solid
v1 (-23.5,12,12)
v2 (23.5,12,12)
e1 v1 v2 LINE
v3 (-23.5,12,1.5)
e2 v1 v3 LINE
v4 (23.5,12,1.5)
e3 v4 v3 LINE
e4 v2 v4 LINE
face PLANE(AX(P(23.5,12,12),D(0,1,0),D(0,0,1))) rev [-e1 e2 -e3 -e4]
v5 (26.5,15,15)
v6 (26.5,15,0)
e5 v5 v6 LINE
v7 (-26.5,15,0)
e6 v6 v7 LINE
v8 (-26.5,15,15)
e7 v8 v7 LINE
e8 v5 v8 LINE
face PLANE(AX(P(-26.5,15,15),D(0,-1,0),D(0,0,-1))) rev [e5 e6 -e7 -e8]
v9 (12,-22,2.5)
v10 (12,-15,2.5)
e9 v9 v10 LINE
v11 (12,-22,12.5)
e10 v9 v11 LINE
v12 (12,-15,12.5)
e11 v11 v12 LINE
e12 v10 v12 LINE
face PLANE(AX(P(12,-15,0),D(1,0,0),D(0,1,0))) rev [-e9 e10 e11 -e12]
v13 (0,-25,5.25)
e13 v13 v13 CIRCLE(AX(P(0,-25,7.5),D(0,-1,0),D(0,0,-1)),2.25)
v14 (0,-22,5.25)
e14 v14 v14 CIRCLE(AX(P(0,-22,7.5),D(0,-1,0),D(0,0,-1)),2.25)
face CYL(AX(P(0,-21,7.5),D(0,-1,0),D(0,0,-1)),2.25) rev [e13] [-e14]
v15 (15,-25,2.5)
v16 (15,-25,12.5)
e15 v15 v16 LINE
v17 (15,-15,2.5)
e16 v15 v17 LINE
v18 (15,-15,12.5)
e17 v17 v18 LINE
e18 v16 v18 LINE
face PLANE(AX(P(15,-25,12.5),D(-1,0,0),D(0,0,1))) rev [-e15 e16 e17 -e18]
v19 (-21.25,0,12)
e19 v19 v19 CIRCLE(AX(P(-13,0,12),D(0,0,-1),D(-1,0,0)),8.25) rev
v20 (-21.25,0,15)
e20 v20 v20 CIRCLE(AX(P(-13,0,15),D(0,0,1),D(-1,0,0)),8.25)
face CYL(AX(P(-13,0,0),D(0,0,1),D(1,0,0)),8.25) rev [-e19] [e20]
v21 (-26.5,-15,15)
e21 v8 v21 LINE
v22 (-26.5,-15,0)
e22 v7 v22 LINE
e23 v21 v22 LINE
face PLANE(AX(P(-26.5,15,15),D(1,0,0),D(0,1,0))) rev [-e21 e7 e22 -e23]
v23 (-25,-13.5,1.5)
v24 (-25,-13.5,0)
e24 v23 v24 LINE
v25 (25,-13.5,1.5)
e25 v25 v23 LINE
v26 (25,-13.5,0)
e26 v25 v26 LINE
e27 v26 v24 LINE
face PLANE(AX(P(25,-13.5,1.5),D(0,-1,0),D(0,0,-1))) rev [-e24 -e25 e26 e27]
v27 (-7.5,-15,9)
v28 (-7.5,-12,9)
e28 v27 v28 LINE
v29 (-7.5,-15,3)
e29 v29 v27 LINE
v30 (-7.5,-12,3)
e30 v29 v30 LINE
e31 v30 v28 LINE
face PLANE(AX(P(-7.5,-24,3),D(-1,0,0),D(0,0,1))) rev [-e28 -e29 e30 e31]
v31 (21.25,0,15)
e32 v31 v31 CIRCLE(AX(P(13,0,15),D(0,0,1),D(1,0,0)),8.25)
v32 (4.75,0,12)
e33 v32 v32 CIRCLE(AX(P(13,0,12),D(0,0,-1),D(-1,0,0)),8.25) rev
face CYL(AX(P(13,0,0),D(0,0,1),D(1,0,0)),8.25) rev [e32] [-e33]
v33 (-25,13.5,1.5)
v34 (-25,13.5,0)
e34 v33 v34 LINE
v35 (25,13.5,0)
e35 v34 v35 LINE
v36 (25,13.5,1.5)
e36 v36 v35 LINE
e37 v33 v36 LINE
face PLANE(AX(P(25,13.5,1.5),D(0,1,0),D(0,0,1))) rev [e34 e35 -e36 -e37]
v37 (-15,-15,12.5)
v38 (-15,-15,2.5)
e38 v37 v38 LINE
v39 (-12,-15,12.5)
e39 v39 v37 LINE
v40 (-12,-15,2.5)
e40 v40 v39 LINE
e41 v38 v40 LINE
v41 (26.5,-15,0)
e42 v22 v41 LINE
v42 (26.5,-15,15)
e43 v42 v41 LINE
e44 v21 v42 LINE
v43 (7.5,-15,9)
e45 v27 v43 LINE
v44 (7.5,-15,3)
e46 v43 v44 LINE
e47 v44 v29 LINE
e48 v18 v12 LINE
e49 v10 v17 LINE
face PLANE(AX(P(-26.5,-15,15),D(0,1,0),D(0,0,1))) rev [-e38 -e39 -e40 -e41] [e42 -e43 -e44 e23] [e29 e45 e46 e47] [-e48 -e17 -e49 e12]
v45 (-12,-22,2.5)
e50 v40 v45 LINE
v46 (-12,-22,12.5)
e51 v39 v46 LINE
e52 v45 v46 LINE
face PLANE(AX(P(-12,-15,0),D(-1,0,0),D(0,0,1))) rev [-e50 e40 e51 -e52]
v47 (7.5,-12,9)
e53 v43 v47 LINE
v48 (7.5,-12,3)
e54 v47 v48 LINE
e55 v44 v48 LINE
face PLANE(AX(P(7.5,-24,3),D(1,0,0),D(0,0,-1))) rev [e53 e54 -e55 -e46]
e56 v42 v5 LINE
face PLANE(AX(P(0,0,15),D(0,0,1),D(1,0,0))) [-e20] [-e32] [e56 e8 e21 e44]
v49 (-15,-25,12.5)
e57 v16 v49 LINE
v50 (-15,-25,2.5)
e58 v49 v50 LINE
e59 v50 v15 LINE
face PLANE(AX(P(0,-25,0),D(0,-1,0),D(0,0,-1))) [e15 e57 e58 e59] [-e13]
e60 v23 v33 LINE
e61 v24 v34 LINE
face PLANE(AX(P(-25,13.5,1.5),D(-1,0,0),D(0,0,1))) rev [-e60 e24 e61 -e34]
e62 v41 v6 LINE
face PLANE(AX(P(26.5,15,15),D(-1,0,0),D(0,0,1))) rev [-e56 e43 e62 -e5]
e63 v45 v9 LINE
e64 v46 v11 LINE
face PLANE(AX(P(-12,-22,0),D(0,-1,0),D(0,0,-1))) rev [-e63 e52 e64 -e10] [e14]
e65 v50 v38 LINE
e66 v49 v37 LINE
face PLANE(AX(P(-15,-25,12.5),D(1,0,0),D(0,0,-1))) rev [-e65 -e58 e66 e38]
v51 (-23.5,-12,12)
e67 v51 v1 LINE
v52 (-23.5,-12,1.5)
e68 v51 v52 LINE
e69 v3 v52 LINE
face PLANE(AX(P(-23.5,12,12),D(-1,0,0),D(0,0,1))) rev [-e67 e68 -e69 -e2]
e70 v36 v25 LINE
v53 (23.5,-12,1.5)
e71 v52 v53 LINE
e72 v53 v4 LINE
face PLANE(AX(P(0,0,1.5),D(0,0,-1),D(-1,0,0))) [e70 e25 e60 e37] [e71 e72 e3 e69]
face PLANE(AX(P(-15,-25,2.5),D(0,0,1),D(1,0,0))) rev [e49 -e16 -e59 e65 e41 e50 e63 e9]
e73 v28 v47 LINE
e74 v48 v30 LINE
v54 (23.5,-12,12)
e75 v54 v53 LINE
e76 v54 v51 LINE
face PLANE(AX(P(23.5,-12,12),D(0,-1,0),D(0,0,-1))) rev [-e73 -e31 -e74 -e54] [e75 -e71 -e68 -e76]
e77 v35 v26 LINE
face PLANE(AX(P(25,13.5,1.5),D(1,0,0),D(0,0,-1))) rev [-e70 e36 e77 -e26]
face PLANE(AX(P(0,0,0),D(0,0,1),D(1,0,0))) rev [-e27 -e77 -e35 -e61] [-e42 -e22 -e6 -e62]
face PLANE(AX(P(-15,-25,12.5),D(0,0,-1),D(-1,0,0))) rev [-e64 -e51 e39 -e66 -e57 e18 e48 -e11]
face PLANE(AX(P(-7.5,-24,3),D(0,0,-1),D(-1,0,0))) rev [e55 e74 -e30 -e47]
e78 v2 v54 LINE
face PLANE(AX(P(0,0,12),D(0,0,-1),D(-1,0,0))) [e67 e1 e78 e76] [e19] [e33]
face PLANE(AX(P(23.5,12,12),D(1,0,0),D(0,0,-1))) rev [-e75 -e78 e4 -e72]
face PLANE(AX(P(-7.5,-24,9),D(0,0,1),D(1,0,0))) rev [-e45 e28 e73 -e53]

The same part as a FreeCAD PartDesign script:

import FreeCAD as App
import Part
import Sketcher

V = App.Vector

doc = App.newDocument("Part")
body = doc.addObject("PartDesign::Body", "Body")

# Sketch on XY plane
sketch1 = body.newObject("Sketcher::SketchObject", "Sketch")
sketch1.AttachmentSupport = (doc.getObject("XY_Plane"), [""])
sketch1.MapMode = "FlatFace"
sketch1.addGeometry(Part.LineSegment(V(-26, 15, 0), V(-26, -15, 0)), False)
sketch1.addGeometry(Part.LineSegment(V(-26, -15, 0), V(26, -15, 0)), False)
sketch1.addGeometry(Part.LineSegment(V(26, -15, 0), V(26, 15, 0)), False)
sketch1.addGeometry(Part.LineSegment(V(26, 15, 0), V(-26, 15, 0)), False)
sketch1.addConstraint(Sketcher.Constraint("Coincident", 0, 2, 1, 1))
sketch1.addConstraint(Sketcher.Constraint("Coincident", 1, 2, 2, 1))
sketch1.addConstraint(Sketcher.Constraint("Coincident", 2, 2, 3, 1))
sketch1.addConstraint(Sketcher.Constraint("Coincident", 3, 2, 0, 1))
sketch1.addConstraint(Sketcher.Constraint("Vertical", 0))
sketch1.addConstraint(Sketcher.Constraint("Horizontal", 1))
sketch1.addConstraint(Sketcher.Constraint("Vertical", 2))
sketch1.addConstraint(Sketcher.Constraint("Horizontal", 3))
sketch1.addConstraint(Sketcher.Constraint("Symmetric", 0, 2, 2, 2, -1, 1))
sketch1.addConstraint(Sketcher.Constraint("DistanceX", 1, 1, 1, 2, 53.0))
sketch1.addConstraint(Sketcher.Constraint("DistanceY", 0, 2, 0, 1, 30.0))
pad1 = body.newObject("PartDesign::Pad", "Pad")
pad1.Profile = sketch1
pad1.Length = 15

# Sketch on XY plane
sketch2 = body.newObject("Sketcher::SketchObject", "Sketch001")
sketch2.AttachmentSupport = (doc.getObject("XY_Plane"), [""])
sketch2.MapMode = "FlatFace"
sketch2.AttachmentOffset = App.Placement(V(0, 0, 15), App.Rotation())
sketch2.addGeometry(Part.Circle(V(13, 0, 0), V(0, 0, 1), 8), False)
sketch2.addGeometry(Part.Circle(V(-13, 0, 0), V(0, 0, 1), 8), False)
sketch2.addConstraint(Sketcher.Constraint("Equal", 0, 1))
sketch2.addConstraint(Sketcher.Constraint("Symmetric", 0, 3, 1, 3, -1, 1))
sketch2.addConstraint(Sketcher.Constraint("PointOnObject", 0, 3, -1))
sketch2.addConstraint(Sketcher.Constraint("Diameter", 0, 16.5))
sketch2.addConstraint(Sketcher.Constraint("DistanceX", -1, 1, 0, 3, 13.0))
pocket1 = body.newObject("PartDesign::Pocket", "Pocket")
pocket1.Profile = sketch2
pocket1.Type = "ThroughAll"

# Sketch on XY plane
sketch3 = body.newObject("Sketcher::SketchObject", "Sketch002")
sketch3.AttachmentSupport = (doc.getObject("XY_Plane"), [""])
sketch3.MapMode = "FlatFace"
sketch3.addGeometry(Part.LineSegment(V(24, 12, 0), V(24, -12, 0)), False)
sketch3.addGeometry(Part.LineSegment(V(24, -12, 0), V(-24, -12, 0)), False)
sketch3.addGeometry(Part.LineSegment(V(-24, -12, 0), V(-24, 12, 0)), False)
sketch3.addGeometry(Part.LineSegment(V(-24, 12, 0), V(24, 12, 0)), False)
sketch3.addConstraint(Sketcher.Constraint("Coincident", 0, 2, 1, 1))
sketch3.addConstraint(Sketcher.Constraint("Coincident", 1, 2, 2, 1))
sketch3.addConstraint(Sketcher.Constraint("Coincident", 2, 2, 3, 1))
sketch3.addConstraint(Sketcher.Constraint("Coincident", 3, 2, 0, 1))
sketch3.addConstraint(Sketcher.Constraint("Vertical", 0))
sketch3.addConstraint(Sketcher.Constraint("Horizontal", 1))
sketch3.addConstraint(Sketcher.Constraint("Vertical", 2))
sketch3.addConstraint(Sketcher.Constraint("Horizontal", 3))
sketch3.addConstraint(Sketcher.Constraint("Symmetric", 0, 2, 2, 2, -1, 1))
sketch3.addConstraint(Sketcher.Constraint("DistanceX", 1, 2, 1, 1, 47.0))
sketch3.addConstraint(Sketcher.Constraint("DistanceY", 0, 2, 0, 1, 24.0))
pocket2 = body.newObject("PartDesign::Pocket", "Pocket001")
pocket2.Profile = sketch3
pocket2.Length = 12
pocket2.Reversed = True

# Sketch on XZ plane
sketch4 = body.newObject("Sketcher::SketchObject", "Sketch003")
sketch4.AttachmentSupport = (doc.getObject("XZ_Plane"), [""])
sketch4.MapMode = "FlatFace"
sketch4.AttachmentOffset = App.Placement(V(0, 0, 12), App.Rotation())
sketch4.addGeometry(Part.LineSegment(V(-8, 3, 0), V(-8, 9, 0)), False)
sketch4.addGeometry(Part.LineSegment(V(-8, 9, 0), V(8, 9, 0)), False)
sketch4.addGeometry(Part.LineSegment(V(8, 9, 0), V(8, 3, 0)), False)
sketch4.addGeometry(Part.LineSegment(V(8, 3, 0), V(-8, 3, 0)), False)
sketch4.addConstraint(Sketcher.Constraint("Coincident", 0, 2, 1, 1))
sketch4.addConstraint(Sketcher.Constraint("Coincident", 1, 2, 2, 1))
sketch4.addConstraint(Sketcher.Constraint("Coincident", 2, 2, 3, 1))
sketch4.addConstraint(Sketcher.Constraint("Coincident", 3, 2, 0, 1))
sketch4.addConstraint(Sketcher.Constraint("Vertical", 0))
sketch4.addConstraint(Sketcher.Constraint("Horizontal", 1))
sketch4.addConstraint(Sketcher.Constraint("Vertical", 2))
sketch4.addConstraint(Sketcher.Constraint("Horizontal", 3))
sketch4.addConstraint(Sketcher.Constraint("DistanceX", 1, 1, 1, 2, 15.0))
sketch4.addConstraint(Sketcher.Constraint("DistanceY", 0, 1, 0, 2, 6.0))
sketch4.addConstraint(Sketcher.Constraint("DistanceY", -1, 1, 0, 2, 9.0))
sketch4.addConstraint(Sketcher.Constraint("DistanceX", 0, 2, -1, 1, 7.5))
pocket3 = body.newObject("PartDesign::Pocket", "Pocket002")
pocket3.Profile = sketch4
pocket3.Length = 12
pocket3.Reversed = True

# Sketch on XY plane
sketch5 = body.newObject("Sketcher::SketchObject", "Sketch004")
sketch5.AttachmentSupport = (doc.getObject("XY_Plane"), [""])
sketch5.MapMode = "FlatFace"
sketch5.addGeometry(Part.LineSegment(V(25, 14, 0), V(25, -14, 0)), False)
sketch5.addGeometry(Part.LineSegment(V(25, -14, 0), V(-25, -14, 0)), False)
sketch5.addGeometry(Part.LineSegment(V(-25, -14, 0), V(-25, 14, 0)), False)
sketch5.addGeometry(Part.LineSegment(V(-25, 14, 0), V(25, 14, 0)), False)
sketch5.addConstraint(Sketcher.Constraint("Coincident", 0, 2, 1, 1))
sketch5.addConstraint(Sketcher.Constraint("Coincident", 1, 2, 2, 1))
sketch5.addConstraint(Sketcher.Constraint("Coincident", 2, 2, 3, 1))
sketch5.addConstraint(Sketcher.Constraint("Coincident", 3, 2, 0, 1))
sketch5.addConstraint(Sketcher.Constraint("Vertical", 0))
sketch5.addConstraint(Sketcher.Constraint("Horizontal", 1))
sketch5.addConstraint(Sketcher.Constraint("Vertical", 2))
sketch5.addConstraint(Sketcher.Constraint("Horizontal", 3))
sketch5.addConstraint(Sketcher.Constraint("Symmetric", 0, 2, 2, 2, -1, 1))
sketch5.addConstraint(Sketcher.Constraint("DistanceX", 1, 2, 1, 1, 50.0))
sketch5.addConstraint(Sketcher.Constraint("DistanceY", 0, 2, 0, 1, 27.0))
pocket4 = body.newObject("PartDesign::Pocket", "Pocket003")
pocket4.Profile = sketch5
pocket4.Length = 1.5
pocket4.Reversed = True

# Sketch on XZ plane
sketch6 = body.newObject("Sketcher::SketchObject", "Sketch005")
sketch6.AttachmentSupport = (doc.getObject("XZ_Plane"), [""])
sketch6.MapMode = "FlatFace"
sketch6.AttachmentOffset = App.Placement(V(0, 0, 15), App.Rotation())
sketch6.addGeometry(Part.LineSegment(V(-15, 12, 0), V(-15, 2, 0)), False)
sketch6.addGeometry(Part.LineSegment(V(-15, 2, 0), V(15, 2, 0)), False)
sketch6.addGeometry(Part.LineSegment(V(15, 2, 0), V(15, 12, 0)), False)
sketch6.addGeometry(Part.LineSegment(V(15, 12, 0), V(-15, 12, 0)), False)
sketch6.addConstraint(Sketcher.Constraint("Coincident", 0, 2, 1, 1))
sketch6.addConstraint(Sketcher.Constraint("Coincident", 1, 2, 2, 1))
sketch6.addConstraint(Sketcher.Constraint("Coincident", 2, 2, 3, 1))
sketch6.addConstraint(Sketcher.Constraint("Coincident", 3, 2, 0, 1))
sketch6.addConstraint(Sketcher.Constraint("Vertical", 0))
sketch6.addConstraint(Sketcher.Constraint("Horizontal", 1))
sketch6.addConstraint(Sketcher.Constraint("Vertical", 2))
sketch6.addConstraint(Sketcher.Constraint("Horizontal", 3))
sketch6.addConstraint(Sketcher.Constraint("DistanceX", 1, 1, 1, 2, 30.0))
sketch6.addConstraint(Sketcher.Constraint("DistanceY", 0, 2, 0, 1, 10.0))
sketch6.addConstraint(Sketcher.Constraint("DistanceX", 0, 2, -1, 1, 15.0))
sketch6.addConstraint(Sketcher.Constraint("DistanceY", -1, 1, 0, 2, 2.5))
pad2 = body.newObject("PartDesign::Pad", "Pad001")
pad2.Profile = sketch6
pad2.Length = 10

# Sketch on XY plane
sketch7 = body.newObject("Sketcher::SketchObject", "Sketch006")
sketch7.AttachmentSupport = (doc.getObject("XY_Plane"), [""])
sketch7.MapMode = "FlatFace"
sketch7.AttachmentOffset = App.Placement(V(0, 0, 12.5), App.Rotation())
sketch7.addGeometry(Part.LineSegment(V(-12, -15, 0), V(-12, -22, 0)), False)
sketch7.addGeometry(Part.LineSegment(V(-12, -22, 0), V(12, -22, 0)), False)
sketch7.addGeometry(Part.LineSegment(V(12, -22, 0), V(12, -15, 0)), False)
sketch7.addGeometry(Part.LineSegment(V(12, -15, 0), V(-12, -15, 0)), False)
sketch7.addConstraint(Sketcher.Constraint("Coincident", 0, 2, 1, 1))
sketch7.addConstraint(Sketcher.Constraint("Coincident", 1, 2, 2, 1))
sketch7.addConstraint(Sketcher.Constraint("Coincident", 2, 2, 3, 1))
sketch7.addConstraint(Sketcher.Constraint("Coincident", 3, 2, 0, 1))
sketch7.addConstraint(Sketcher.Constraint("Vertical", 0))
sketch7.addConstraint(Sketcher.Constraint("Horizontal", 1))
sketch7.addConstraint(Sketcher.Constraint("Vertical", 2))
sketch7.addConstraint(Sketcher.Constraint("Horizontal", 3))
sketch7.addConstraint(Sketcher.Constraint("DistanceX", 1, 1, 1, 2, 24.0))
sketch7.addConstraint(Sketcher.Constraint("DistanceY", 0, 2, 0, 1, 7.0))
sketch7.addConstraint(Sketcher.Constraint("DistanceX", 0, 2, -1, 1, 12.0))
sketch7.addConstraint(Sketcher.Constraint("DistanceY", 0, 2, -1, 1, 22.0))
pocket5 = body.newObject("PartDesign::Pocket", "Pocket004")
pocket5.Profile = sketch7
pocket5.Type = "ThroughAll"

# Sketch on XZ plane
sketch8 = body.newObject("Sketcher::SketchObject", "Sketch007")
sketch8.AttachmentSupport = (doc.getObject("XZ_Plane"), [""])
sketch8.MapMode = "FlatFace"
sketch8.AttachmentOffset = App.Placement(V(0, 0, 25), App.Rotation())
sketch8.addGeometry(Part.Circle(V(0, 7.5, 0), V(0, 0, 1), 2.2), False)
sketch8.addConstraint(Sketcher.Constraint("PointOnObject", 0, 3, -2))
sketch8.addConstraint(Sketcher.Constraint("Diameter", 0, 4.5))
sketch8.addConstraint(Sketcher.Constraint("DistanceY", -1, 1, 0, 3, 7.5))
pocket6 = body.newObject("PartDesign::Pocket", "Pocket005")
pocket6.Profile = sketch8
pocket6.Length = 4

doc.recompute()
